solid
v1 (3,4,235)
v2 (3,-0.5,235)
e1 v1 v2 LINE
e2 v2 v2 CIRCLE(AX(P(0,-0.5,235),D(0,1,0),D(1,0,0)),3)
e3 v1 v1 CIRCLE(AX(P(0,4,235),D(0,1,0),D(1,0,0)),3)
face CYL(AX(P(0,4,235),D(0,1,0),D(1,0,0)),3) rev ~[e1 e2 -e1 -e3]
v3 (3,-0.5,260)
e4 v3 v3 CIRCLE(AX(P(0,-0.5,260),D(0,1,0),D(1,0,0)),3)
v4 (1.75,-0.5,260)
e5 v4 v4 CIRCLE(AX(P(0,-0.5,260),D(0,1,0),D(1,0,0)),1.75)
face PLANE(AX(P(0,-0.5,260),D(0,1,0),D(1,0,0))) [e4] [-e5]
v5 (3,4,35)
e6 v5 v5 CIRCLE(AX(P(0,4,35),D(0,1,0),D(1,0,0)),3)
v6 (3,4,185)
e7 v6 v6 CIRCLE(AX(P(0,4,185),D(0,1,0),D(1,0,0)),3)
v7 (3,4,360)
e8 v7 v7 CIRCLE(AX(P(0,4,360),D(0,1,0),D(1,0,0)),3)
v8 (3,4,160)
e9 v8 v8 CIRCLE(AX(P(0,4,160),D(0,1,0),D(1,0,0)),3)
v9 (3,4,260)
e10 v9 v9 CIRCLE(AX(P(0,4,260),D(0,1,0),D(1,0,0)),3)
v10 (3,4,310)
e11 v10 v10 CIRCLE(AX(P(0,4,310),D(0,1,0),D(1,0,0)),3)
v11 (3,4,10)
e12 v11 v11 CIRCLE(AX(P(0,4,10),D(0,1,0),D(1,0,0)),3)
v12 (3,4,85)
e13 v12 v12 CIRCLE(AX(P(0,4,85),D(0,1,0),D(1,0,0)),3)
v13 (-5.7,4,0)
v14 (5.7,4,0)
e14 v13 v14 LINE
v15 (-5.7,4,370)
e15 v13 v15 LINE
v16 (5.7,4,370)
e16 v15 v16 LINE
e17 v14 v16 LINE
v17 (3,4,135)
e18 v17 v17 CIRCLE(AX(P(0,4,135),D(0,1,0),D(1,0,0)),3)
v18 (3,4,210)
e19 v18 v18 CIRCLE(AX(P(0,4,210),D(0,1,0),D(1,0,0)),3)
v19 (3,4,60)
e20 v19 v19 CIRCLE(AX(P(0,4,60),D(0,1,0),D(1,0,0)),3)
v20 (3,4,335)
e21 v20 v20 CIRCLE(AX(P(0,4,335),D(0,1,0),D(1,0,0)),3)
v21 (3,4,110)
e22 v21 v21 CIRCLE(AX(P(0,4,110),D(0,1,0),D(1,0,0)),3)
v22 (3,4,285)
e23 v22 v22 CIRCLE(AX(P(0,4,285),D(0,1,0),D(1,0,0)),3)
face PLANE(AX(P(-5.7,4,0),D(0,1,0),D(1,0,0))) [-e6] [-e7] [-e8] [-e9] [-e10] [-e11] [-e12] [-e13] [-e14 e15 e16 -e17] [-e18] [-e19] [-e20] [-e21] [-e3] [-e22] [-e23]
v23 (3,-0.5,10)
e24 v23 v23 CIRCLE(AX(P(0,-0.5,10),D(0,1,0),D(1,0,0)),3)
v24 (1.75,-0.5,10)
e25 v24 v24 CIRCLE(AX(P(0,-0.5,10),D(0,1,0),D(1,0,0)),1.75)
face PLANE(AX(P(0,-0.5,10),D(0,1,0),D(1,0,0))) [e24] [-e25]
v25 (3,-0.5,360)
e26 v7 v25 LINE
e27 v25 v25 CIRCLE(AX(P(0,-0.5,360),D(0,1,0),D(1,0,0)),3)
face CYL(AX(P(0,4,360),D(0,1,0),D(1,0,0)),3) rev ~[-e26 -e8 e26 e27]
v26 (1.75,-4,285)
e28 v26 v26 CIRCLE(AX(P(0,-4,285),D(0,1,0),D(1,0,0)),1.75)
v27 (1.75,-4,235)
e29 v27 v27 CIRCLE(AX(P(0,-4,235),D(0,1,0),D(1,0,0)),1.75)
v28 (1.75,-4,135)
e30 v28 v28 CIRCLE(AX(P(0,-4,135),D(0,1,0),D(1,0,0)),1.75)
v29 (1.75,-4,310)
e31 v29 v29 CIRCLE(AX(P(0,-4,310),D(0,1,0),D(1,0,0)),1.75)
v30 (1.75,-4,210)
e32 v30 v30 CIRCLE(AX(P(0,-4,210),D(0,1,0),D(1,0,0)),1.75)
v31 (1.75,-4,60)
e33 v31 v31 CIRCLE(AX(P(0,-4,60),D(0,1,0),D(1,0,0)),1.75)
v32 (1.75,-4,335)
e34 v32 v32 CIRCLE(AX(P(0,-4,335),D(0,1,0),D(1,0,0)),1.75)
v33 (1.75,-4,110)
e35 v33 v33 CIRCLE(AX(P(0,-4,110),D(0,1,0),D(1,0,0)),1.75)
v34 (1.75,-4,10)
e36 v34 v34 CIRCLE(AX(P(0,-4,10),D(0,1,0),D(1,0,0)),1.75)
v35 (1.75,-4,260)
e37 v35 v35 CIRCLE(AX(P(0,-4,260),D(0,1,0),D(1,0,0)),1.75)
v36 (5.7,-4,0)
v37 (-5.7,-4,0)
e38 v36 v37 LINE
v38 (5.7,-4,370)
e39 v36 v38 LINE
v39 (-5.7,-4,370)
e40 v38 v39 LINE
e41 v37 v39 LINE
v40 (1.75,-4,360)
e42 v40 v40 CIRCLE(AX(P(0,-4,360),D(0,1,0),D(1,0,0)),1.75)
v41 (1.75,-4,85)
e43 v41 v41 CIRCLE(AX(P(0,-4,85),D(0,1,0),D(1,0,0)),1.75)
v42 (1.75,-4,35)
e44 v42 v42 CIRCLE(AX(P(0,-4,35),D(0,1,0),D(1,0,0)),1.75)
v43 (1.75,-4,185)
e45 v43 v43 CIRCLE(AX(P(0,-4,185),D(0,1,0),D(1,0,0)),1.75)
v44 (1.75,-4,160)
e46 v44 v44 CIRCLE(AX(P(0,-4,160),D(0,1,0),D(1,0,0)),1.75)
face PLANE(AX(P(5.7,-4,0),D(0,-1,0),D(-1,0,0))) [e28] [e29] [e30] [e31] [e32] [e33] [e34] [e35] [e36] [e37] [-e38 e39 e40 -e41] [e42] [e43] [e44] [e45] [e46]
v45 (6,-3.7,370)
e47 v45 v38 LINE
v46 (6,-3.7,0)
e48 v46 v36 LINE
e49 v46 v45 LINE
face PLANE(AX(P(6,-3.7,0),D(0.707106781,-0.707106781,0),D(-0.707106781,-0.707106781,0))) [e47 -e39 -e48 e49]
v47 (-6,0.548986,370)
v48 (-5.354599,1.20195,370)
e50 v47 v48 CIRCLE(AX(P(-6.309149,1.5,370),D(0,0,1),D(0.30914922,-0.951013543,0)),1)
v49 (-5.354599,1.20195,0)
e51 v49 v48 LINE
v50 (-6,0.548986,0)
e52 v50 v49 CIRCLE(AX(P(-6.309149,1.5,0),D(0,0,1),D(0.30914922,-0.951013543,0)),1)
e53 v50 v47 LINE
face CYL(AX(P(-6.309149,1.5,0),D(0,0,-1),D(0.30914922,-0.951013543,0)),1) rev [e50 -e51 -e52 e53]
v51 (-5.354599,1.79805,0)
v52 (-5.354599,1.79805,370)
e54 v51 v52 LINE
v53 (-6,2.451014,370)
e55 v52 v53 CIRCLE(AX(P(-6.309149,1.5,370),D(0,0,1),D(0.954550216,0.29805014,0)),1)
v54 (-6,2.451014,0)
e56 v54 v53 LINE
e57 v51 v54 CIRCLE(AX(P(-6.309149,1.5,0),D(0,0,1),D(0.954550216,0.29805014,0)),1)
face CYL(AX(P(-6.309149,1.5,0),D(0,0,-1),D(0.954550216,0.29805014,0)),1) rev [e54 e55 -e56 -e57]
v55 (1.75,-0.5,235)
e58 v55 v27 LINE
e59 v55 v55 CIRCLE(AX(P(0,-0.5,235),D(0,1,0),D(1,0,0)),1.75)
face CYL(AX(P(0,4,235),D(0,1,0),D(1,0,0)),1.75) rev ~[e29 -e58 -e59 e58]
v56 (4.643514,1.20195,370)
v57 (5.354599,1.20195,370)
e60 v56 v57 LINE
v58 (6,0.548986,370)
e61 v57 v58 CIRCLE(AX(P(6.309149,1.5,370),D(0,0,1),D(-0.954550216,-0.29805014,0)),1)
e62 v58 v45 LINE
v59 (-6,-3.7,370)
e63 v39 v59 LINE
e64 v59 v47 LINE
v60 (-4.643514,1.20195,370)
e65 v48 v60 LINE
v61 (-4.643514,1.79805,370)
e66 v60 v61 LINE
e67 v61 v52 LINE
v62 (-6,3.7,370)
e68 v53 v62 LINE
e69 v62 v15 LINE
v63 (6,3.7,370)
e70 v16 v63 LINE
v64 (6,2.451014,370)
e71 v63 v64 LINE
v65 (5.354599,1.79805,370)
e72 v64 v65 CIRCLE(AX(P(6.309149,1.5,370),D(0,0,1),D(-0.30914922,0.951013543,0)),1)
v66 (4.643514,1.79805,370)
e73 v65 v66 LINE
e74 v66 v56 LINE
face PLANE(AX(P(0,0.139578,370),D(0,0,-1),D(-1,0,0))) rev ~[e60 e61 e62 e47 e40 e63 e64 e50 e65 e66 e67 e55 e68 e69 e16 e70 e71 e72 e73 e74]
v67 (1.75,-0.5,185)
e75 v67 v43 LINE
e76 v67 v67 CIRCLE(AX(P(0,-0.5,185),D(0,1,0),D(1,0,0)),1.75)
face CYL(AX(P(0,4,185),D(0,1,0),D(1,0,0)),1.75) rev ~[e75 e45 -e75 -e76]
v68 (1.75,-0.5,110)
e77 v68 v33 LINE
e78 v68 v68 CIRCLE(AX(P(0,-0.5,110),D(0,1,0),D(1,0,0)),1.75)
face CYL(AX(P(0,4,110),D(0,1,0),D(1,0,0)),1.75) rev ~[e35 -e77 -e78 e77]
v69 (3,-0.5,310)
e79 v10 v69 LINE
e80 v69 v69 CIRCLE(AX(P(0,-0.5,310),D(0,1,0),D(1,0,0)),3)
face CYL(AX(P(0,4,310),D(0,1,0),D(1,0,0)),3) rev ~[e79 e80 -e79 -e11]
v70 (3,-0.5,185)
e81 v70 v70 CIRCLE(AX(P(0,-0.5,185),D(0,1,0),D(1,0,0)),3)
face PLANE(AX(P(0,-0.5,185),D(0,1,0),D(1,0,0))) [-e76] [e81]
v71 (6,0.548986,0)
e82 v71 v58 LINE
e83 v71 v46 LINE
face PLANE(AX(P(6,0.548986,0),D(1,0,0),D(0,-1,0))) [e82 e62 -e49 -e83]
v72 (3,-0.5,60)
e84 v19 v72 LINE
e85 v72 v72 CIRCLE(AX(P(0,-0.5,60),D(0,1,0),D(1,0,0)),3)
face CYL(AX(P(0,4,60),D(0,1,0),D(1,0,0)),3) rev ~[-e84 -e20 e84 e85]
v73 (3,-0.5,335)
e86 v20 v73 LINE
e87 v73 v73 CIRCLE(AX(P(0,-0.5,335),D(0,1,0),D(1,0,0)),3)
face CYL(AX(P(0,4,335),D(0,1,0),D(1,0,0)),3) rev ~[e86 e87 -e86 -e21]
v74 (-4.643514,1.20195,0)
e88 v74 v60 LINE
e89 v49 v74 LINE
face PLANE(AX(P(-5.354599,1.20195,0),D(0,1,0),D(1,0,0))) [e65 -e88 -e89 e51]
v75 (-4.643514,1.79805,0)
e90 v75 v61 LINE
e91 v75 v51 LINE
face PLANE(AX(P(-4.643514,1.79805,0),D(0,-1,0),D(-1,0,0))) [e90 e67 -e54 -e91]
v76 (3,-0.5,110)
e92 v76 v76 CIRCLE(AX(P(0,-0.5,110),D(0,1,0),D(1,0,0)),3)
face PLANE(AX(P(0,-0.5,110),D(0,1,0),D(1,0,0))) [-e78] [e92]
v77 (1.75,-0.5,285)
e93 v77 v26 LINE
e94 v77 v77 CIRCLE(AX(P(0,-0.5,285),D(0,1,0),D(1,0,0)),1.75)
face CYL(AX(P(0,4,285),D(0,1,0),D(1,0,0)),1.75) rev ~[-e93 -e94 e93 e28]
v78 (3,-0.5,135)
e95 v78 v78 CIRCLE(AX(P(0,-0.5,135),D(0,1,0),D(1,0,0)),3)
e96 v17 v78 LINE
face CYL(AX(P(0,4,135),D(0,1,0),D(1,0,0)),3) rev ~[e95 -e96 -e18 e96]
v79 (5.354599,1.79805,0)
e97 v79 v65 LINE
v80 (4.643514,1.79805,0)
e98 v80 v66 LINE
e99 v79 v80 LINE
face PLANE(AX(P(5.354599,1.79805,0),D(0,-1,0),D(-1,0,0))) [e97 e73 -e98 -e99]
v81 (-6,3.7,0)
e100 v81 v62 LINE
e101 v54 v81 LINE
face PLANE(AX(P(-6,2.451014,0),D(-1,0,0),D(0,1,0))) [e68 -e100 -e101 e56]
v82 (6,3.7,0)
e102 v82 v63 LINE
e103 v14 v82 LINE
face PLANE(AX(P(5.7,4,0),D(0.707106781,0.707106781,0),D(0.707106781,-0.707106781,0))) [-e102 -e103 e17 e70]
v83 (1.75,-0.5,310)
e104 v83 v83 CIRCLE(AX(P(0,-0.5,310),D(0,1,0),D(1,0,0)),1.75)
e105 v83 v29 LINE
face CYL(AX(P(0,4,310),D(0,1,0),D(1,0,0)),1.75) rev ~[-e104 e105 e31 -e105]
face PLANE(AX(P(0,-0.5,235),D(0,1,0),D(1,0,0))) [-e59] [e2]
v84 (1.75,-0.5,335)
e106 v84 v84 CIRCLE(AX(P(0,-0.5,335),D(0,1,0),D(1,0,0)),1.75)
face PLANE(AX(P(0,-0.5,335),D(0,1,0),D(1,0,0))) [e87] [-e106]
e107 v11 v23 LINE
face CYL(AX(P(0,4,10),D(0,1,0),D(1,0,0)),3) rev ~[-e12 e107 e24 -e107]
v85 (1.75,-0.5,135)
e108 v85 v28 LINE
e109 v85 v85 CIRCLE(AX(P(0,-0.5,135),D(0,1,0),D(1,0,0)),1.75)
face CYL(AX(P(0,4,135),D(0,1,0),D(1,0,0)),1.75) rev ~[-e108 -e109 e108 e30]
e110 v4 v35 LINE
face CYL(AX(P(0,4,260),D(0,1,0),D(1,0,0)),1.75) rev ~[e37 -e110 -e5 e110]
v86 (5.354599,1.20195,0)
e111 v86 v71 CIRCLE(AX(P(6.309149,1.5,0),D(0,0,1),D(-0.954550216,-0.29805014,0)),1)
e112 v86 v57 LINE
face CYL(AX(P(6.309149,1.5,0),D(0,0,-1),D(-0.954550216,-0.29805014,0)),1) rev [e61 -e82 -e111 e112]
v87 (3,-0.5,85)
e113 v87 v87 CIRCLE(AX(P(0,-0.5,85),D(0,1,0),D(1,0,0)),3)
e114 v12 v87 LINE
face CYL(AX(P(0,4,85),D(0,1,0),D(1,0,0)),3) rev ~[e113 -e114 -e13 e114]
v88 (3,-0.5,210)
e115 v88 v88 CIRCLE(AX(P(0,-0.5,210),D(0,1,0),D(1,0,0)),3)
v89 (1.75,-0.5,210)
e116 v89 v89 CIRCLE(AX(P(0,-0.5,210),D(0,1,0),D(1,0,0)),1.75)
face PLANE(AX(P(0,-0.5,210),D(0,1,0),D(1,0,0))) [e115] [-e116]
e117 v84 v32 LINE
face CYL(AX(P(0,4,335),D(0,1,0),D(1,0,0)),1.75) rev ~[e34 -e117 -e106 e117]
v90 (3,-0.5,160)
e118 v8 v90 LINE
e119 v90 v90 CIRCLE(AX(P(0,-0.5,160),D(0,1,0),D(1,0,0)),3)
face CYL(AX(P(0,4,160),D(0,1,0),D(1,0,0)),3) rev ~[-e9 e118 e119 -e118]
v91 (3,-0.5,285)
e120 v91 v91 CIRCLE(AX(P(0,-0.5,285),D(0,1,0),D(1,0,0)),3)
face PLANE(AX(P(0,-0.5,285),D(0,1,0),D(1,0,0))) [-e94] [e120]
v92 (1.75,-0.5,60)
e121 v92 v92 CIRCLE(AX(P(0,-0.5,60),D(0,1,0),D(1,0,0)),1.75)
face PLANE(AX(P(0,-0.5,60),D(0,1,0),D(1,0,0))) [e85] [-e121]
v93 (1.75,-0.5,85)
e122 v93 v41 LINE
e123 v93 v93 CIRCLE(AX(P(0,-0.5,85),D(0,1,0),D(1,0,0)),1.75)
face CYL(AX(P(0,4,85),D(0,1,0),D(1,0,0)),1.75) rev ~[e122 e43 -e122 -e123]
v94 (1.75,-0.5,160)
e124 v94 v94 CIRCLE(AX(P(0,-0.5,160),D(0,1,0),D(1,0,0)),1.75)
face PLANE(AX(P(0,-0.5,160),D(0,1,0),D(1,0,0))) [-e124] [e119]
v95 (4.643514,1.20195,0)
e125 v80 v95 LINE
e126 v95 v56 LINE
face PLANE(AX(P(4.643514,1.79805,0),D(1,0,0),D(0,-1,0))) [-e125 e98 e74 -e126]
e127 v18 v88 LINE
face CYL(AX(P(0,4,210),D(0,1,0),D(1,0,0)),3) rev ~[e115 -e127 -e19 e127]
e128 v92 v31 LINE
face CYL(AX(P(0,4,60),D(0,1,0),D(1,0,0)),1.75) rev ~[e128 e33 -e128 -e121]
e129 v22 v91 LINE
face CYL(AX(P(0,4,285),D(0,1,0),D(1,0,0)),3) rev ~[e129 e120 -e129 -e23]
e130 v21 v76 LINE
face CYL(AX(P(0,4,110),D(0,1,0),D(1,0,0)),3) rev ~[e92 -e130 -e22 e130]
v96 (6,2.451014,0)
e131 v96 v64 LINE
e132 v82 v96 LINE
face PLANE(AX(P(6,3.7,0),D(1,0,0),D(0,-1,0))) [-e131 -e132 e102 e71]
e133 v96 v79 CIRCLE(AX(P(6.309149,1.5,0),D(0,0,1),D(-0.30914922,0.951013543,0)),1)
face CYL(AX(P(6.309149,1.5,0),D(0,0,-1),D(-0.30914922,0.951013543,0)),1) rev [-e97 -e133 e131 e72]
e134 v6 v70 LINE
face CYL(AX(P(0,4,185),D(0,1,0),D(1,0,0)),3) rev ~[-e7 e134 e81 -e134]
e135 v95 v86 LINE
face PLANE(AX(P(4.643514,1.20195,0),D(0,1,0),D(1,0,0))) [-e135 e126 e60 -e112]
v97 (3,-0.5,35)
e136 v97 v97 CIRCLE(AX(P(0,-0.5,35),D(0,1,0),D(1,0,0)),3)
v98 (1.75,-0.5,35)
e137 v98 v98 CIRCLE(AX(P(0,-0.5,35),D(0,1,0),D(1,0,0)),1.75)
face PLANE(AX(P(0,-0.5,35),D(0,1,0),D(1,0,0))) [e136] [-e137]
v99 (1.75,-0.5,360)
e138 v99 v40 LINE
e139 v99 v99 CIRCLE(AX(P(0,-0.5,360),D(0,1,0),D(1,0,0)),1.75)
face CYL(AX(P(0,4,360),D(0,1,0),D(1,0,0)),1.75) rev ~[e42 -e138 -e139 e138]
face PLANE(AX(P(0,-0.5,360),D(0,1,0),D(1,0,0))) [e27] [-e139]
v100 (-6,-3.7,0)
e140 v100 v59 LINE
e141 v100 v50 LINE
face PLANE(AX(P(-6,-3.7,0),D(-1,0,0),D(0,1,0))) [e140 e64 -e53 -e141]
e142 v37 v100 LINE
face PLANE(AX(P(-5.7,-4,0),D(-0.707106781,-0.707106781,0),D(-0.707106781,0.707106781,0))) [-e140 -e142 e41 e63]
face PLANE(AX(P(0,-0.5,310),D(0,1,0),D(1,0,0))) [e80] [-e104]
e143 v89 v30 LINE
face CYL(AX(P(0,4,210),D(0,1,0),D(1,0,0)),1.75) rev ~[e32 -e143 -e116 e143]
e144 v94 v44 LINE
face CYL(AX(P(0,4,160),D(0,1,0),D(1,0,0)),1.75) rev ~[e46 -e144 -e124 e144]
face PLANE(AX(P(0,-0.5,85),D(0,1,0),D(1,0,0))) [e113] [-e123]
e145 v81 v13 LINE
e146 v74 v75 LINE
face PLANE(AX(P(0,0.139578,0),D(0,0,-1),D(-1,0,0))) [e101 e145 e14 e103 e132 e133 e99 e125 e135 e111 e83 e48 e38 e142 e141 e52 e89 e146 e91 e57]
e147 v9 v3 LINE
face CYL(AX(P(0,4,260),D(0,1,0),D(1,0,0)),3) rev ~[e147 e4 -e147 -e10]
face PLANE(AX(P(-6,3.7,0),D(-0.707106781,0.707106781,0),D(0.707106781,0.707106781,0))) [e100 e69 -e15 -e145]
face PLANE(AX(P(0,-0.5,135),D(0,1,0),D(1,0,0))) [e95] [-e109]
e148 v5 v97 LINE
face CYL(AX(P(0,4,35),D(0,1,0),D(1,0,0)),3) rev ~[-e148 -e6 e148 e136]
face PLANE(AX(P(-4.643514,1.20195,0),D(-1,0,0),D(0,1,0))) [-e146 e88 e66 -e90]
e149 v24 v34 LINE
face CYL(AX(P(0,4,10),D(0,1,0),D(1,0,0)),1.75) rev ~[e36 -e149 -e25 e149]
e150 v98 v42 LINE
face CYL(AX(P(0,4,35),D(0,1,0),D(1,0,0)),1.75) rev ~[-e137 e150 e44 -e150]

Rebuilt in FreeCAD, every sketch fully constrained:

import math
import FreeCAD as App
import Part
import Sketcher

V = App.Vector
Q = App.Units.Quantity

doc = App.newDocument("Part")
body = doc.addObject("PartDesign::Body", "Body")

sketch1 = doc.addObject("Sketcher::SketchObject", "Sketch")
body.addObject(sketch1)
sketch1.AttachmentSupport = (doc.XY_Plane, [""])
sketch1.MapMode = "FlatFace"
sketch1.addGeometry(Part.LineSegment(V(-5.7, 4, 0), V(-6, 3.7, 0)), False)
sketch1.addGeometry(Part.LineSegment(V(-6, 3.7, 0), V(-6, 2.45, 0)), False)
sketch1.addGeometry(Part.ArcOfCircle(Part.Circle(V(-6.31, 1.5, 0), V(0, 0, 1), 1), math.radians(17), math.radians(72)), False)
sketch1.addGeometry(Part.LineSegment(V(-5.35, 1.8, 0), V(-4.64, 1.8, 0)), False)
sketch1.addGeometry(Part.LineSegment(V(-4.64, 1.8, 0), V(-4.64, 1.2, 0)), False)
sketch1.addGeometry(Part.LineSegment(V(-4.64, 1.2, 0), V(-5.35, 1.2, 0)), False)
sketch1.addGeometry(Part.ArcOfCircle(Part.Circle(V(-6.31, 1.5, 0), V(0, 0, 1), 1), math.radians(-72), math.radians(-17)), False)
sketch1.addGeometry(Part.LineSegment(V(-6, 0.55, 0), V(-6, -3.7, 0)), False)
sketch1.addGeometry(Part.LineSegment(V(-6, -3.7, 0), V(-5.7, -4, 0)), False)
sketch1.addGeometry(Part.LineSegment(V(-5.7, -4, 0), V(5.7, -4, 0)), False)
sketch1.addGeometry(Part.LineSegment(V(5.7, -4, 0), V(6, -3.7, 0)), False)
sketch1.addGeometry(Part.LineSegment(V(6, -3.7, 0), V(6, 0.55, 0)), False)
sketch1.addGeometry(Part.ArcOfCircle(Part.Circle(V(6.31, 1.5, 0), V(0, 0, 1), 1), math.radians(-163), math.radians(-108)), False)
sketch1.addGeometry(Part.LineSegment(V(5.35, 1.2, 0), V(4.64, 1.2, 0)), False)
sketch1.addGeometry(Part.LineSegment(V(4.64, 1.2, 0), V(4.64, 1.8, 0)), False)
sketch1.addGeometry(Part.LineSegment(V(4.64, 1.8, 0), V(5.35, 1.8, 0)), False)
sketch1.addGeometry(Part.ArcOfCircle(Part.Circle(V(6.31, 1.5, 0), V(0, 0, 1), 1), math.radians(108), math.radians(163)), False)
sketch1.addGeometry(Part.LineSegment(V(6, 2.45, 0), V(6, 3.7, 0)), False)
sketch1.addGeometry(Part.LineSegment(V(6, 3.7, 0), V(5.7, 4, 0)), False)
sketch1.addGeometry(Part.LineSegment(V(5.7, 4, 0), V(-5.7, 4, 0)), False)
sketch1.addConstraint(Sketcher.Constraint("Coincident", 0, 2, 1, 1))
sketch1.addConstraint(Sketcher.Constraint("Coincident", 1, 2, 2, 2))
sketch1.addConstraint(Sketcher.Constraint("Coincident", 2, 1, 3, 1))
sketch1.addConstraint(Sketcher.Constraint("Coincident", 3, 2, 4, 1))
sketch1.addConstraint(Sketcher.Constraint("Coincident", 4, 2, 5, 1))
sketch1.addConstraint(Sketcher.Constraint("Coincident", 5, 2, 6, 2))
sketch1.addConstraint(Sketcher.Constraint("Coincident", 6, 1, 7, 1))
sketch1.addConstraint(Sketcher.Constraint("Coincident", 7, 2, 8, 1))
sketch1.addConstraint(Sketcher.Constraint("Coincident", 8, 2, 9, 1))
sketch1.addConstraint(Sketcher.Constraint("Coincident", 9, 2, 10, 1))
sketch1.addConstraint(Sketcher.Constraint("Coincident", 10, 2, 11, 1))
sketch1.addConstraint(Sketcher.Constraint("Coincident", 11, 2, 12, 2))
sketch1.addConstraint(Sketcher.Constraint("Coincident", 12, 1, 13, 1))
sketch1.addConstraint(Sketcher.Constraint("Coincident", 13, 2, 14, 1))
sketch1.addConstraint(Sketcher.Constraint("Coincident", 14, 2, 15, 1))
sketch1.addConstraint(Sketcher.Constraint("Coincident", 15, 2, 16, 2))
sketch1.addConstraint(Sketcher.Constraint("Coincident", 16, 1, 17, 1))
sketch1.addConstraint(Sketcher.Constraint("Coincident", 17, 2, 18, 1))
sketch1.addConstraint(Sketcher.Constraint("Coincident", 18, 2, 19, 1))
sketch1.addConstraint(Sketcher.Constraint("Coincident", 19, 2, 0, 1))
sketch1.addConstraint(Sketcher.Constraint("Vertical", 1))
sketch1.addConstraint(Sketcher.Constraint("Horizontal", 3))
sketch1.addConstraint(Sketcher.Constraint("Vertical", 4))
sketch1.addConstraint(Sketcher.Constraint("Horizontal", 5))
sketch1.addConstraint(Sketcher.Constraint("Vertical", 7))
sketch1.addConstraint(Sketcher.Constraint("Horizontal", 9))
sketch1.addConstraint(Sketcher.Constraint("Vertical", 11))
sketch1.addConstraint(Sketcher.Constraint("Horizontal", 13))
sketch1.addConstraint(Sketcher.Constraint("Vertical", 14))
sketch1.addConstraint(Sketcher.Constraint("Horizontal", 15))
sketch1.addConstraint(Sketcher.Constraint("Vertical", 17))
sketch1.addConstraint(Sketcher.Constraint("Horizontal", 19))
sketch1.addConstraint(Sketcher.Constraint("Coincident", 6, 3, 2, 3))
sketch1.addConstraint(Sketcher.Constraint("Coincident", 16, 3, 12, 3))
sketch1.addConstraint(Sketcher.Constraint("Equal", 2, 6))
sketch1.addConstraint(Sketcher.Constraint("Equal", 6, 12))
sketch1.addConstraint(Sketcher.Constraint("Equal", 12, 16))
sketch1.addConstraint(Sketcher.Constraint("Symmetric", 0, 2, 10, 2, -1, 1))
sketch1.addConstraint(Sketcher.Constraint("Symmetric", 7, 2, 17, 2, -1, 1))
sketch1.addConstraint(Sketcher.Constraint("Symmetric", 8, 2, 18, 2, -1, 1))
sketch1.addConstraint(Sketcher.Constraint("Symmetric", 2, 3, 12, 3, -2))
sketch1.addConstraint(Sketcher.Constraint("Symmetric", 7, 2, 10, 2, -2))
sketch1.addConstraint(Sketcher.Constraint("Symmetric", 4, 2, 13, 2, -2))
sketch1.addConstraint(Sketcher.Constraint("Perpendicular", 0, 8))
sketch1.addConstraint(Sketcher.Constraint("Perpendicular", 8, 10))
sketch1.addConstraint(Sketcher.Constraint("Horizontal", 3, 2, 14, 2))
sketch1.addConstraint(Sketcher.Constraint("Vertical", 2, 1, 5, 2))
sketch1.addConstraint(Sketcher.Constraint("Vertical", 9, 2, 18, 2))
sketch1.addConstraint(Sketcher.Constraint("Radius", 2, Q("1 mm")))
sketch1.addConstraint(Sketcher.Constraint("DistanceX", 9, 1, 9, 2, Q("11.4 mm")))
sketch1.addConstraint(Sketcher.Constraint("DistanceX", 0, 2, -1, 1, Q("6 mm")))
sketch1.addConstraint(Sketcher.Constraint("DistanceY", 8, 2, -1, 1, Q("4 mm")))
sketch1.addConstraint(Sketcher.Constraint("DistanceY", -1, 1, 2, 3, Q("1.5 mm")))
sketch1.addConstraint(Sketcher.Constraint("DistanceY", 4, 2, 4, 1, Q("0.5961 mm")))
sketch1.addConstraint(Sketcher.Constraint("DistanceX", 2, 1, -1, 1, Q("5.354599 mm")))
sketch1.addConstraint(Sketcher.Constraint("DistanceX", 3, 1, 3, 2, Q("0.711085 mm")))
pad1 = doc.addObject("PartDesign::Pad", "Pad")
body.addObject(pad1)
pad1.Profile = sketch1
pad1.Length = 370

sketch2 = doc.addObject("Sketcher::SketchObject", "Sketch001")
body.addObject(sketch2)
sketch2.AttachmentSupport = (doc.XZ_Plane, [""])
sketch2.MapMode = "FlatFace"
sketch2.AttachmentOffset = App.Placement(V(0, 0, -4), App.Rotation())
sketch2.addGeometry(Part.Circle(V(0, 10, 0), V(0, 0, 1), 3), False)
sketch2.addGeometry(Part.Circle(V(0, 10, 0), V(0, 0, 1), 1.8), False)
sketch2.addConstraint(Sketcher.Constraint("Coincident", 1, 3, 0, 3))
sketch2.addConstraint(Sketcher.Constraint("PointOnObject", 0, 3, -2))
sketch2.addConstraint(Sketcher.Constraint("Diameter", 0, Q("6 mm")))
sketch2.addConstraint(Sketcher.Constraint("Diameter", 1, Q("3.5 mm")))
sketch2.addConstraint(Sketcher.Constraint("DistanceY", -1, 1, 0, 3, Q("10 mm")))
pocket1 = doc.addObject("PartDesign::Pocket", "Pocket")
body.addObject(pocket1)
pocket1.Profile = sketch2
pocket1.Length = 4.5
pocket1.Reversed = True

sketch3 = doc.addObject("Sketcher::SketchObject", "Sketch002")
body.addObject(sketch3)
sketch3.AttachmentSupport = (doc.XZ_Plane, [""])
sketch3.MapMode = "FlatFace"
sketch3.AttachmentOffset = App.Placement(V(0, 0, -4), App.Rotation())
sketch3.addGeometry(Part.Circle(V(0, 10, 0), V(0, 0, 1), 1.8), False)
sketch3.addConstraint(Sketcher.Constraint("PointOnObject", 0, 3, -2))
sketch3.addConstraint(Sketcher.Constraint("Diameter", 0, Q("3.5 mm")))
sketch3.addConstraint(Sketcher.Constraint("DistanceY", -1, 1, 0, 3, Q("10 mm")))
pocket2 = doc.addObject("PartDesign::Pocket", "Pocket001")
body.addObject(pocket2)
pocket2.Profile = sketch3
pocket2.Type = "ThroughAll"
pocket2.Reversed = True
doc.recompute()

linearpattern = doc.addObject("PartDesign::LinearPattern", "LinearPattern")
body.addObject(linearpattern)
linearpattern.Originals = [pocket1, pocket2]
linearpattern.Direction = (doc.Z_Axis, [""])
linearpattern.Mode = "offset"
linearpattern.Offset = 25
linearpattern.Occurrences = 16
body.Tip = linearpattern

doc.recompute()
